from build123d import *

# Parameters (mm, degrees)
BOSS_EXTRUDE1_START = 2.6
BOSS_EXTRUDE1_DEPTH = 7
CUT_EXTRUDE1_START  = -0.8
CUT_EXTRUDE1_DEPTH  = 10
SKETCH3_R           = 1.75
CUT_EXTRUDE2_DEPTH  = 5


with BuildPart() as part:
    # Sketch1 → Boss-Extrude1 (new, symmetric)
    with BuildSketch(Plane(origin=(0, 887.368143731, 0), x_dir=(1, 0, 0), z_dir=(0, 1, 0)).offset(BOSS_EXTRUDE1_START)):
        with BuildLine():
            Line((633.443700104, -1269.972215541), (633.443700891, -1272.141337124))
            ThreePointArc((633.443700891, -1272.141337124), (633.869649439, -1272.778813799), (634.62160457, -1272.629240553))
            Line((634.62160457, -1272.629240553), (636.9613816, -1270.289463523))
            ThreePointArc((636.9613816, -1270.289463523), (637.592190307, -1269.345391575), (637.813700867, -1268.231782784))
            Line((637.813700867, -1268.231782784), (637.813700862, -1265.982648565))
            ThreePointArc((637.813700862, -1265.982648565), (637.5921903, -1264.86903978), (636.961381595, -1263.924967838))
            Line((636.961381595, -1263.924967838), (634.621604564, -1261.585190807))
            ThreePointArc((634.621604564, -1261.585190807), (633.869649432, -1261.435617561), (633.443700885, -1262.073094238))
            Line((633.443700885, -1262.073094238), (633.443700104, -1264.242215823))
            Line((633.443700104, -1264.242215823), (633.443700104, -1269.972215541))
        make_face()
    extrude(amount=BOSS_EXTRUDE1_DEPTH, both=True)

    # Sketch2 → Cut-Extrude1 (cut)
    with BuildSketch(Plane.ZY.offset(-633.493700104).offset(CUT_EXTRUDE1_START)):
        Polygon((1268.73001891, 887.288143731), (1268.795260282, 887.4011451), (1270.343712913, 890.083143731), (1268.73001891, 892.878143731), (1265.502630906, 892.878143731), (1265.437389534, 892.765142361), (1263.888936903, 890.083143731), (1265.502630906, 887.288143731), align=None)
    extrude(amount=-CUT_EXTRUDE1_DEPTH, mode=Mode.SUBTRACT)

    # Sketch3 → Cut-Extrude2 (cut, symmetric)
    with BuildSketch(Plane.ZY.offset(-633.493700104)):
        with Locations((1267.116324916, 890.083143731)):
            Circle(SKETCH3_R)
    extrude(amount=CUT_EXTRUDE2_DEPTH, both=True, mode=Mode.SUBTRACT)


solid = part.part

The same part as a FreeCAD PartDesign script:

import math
import FreeCAD as App
import Part
import Sketcher
from FreeCAD import Vector
Q = App.Units.Quantity

doc = App.newDocument("Part")
body = doc.addObject("PartDesign::Body", "Body")

sketch1 = body.newObject("Sketcher::SketchObject", "Sketch")
sketch1.AttachmentSupport = (doc.getObject("XZ_Plane"), [""])
sketch1.MapMode = "FlatFace"
sketch1.AttachmentOffset = App.Placement(Vector(0, 0, -889.968144), App.Rotation())
sketch1.addGeometry([
    Part.LineSegment(Vector(633.4, 1270, 0), Vector(633.4, 1272.1, 0)),
    Part.ArcOfCircle(Part.Circle(Vector(634.1, 1272.1, 0), Vector(0, 0, 1), 0.7), math.radians(45), math.radians(180)),
    Part.LineSegment(Vector(634.6, 1272.6, 0), Vector(637, 1270.3, 0)),
    Part.ArcOfCircle(Part.Circle(Vector(634.9, 1268.2, 0), Vector(0, 0, 1), 2.9), math.radians(0), math.radians(45)),
    Part.LineSegment(Vector(637.8, 1268.2, 0), Vector(637.8, 1266, 0)),
    Part.ArcOfCircle(Part.Circle(Vector(634.9, 1266, 0), Vector(0, 0, 1), 2.9), math.radians(-45), math.radians(0)),
    Part.LineSegment(Vector(637, 1263.9, 0), Vector(634.6, 1261.6, 0)),
    Part.ArcOfCircle(Part.Circle(Vector(634.1, 1262.1, 0), Vector(0, 0, 1), 0.7), math.radians(-180), math.radians(-45)),
    Part.LineSegment(Vector(633.4, 1262.1, 0), Vector(633.4, 1264.2, 0)),
    Part.LineSegment(Vector(633.4, 1264.2, 0), Vector(633.4, 1270, 0)),
], False)
sketch1.addConstraint([
    Sketcher.Constraint("Tangent", 0, 2, 1, 2),
    Sketcher.Constraint("Tangent", 1, 1, 2, 1),
    Sketcher.Constraint("Tangent", 2, 2, 3, 2),
    Sketcher.Constraint("Tangent", 3, 1, 4, 1),
    Sketcher.Constraint("Tangent", 4, 2, 5, 2),
    Sketcher.Constraint("Tangent", 5, 1, 6, 1),
    Sketcher.Constraint("Tangent", 6, 2, 7, 2),
    Sketcher.Constraint("Tangent", 7, 1, 8, 1),
    Sketcher.Constraint("Coincident", 8, 2, 9, 1),
    Sketcher.Constraint("Coincident", 9, 2, 0, 1),
    Sketcher.Constraint("Vertical", 0),
    Sketcher.Constraint("Vertical", 4),
    Sketcher.Constraint("Vertical", 8),
    Sketcher.Constraint("Vertical", 9),
    Sketcher.Constraint("Equal", 3, 5),
    Sketcher.Constraint("Equal", 1, 7),
    Sketcher.Constraint("Perpendicular", 2, 6),
    Sketcher.Constraint("Vertical", 2, 2, 5, 1),
    Sketcher.Constraint("Equal", 0, 8),
    Sketcher.Constraint("Radius", 1, Q("0.69 mm")),
    Sketcher.Constraint("Radius", 3, Q("2.91 mm")),
    Sketcher.Constraint("DistanceY", 9, 1, 9, 2, Q("5.73 mm")),
    Sketcher.Constraint("DistanceX", 1, 3, 3, 3, Q("0.77 mm")),
    Sketcher.Constraint("DistanceY", 0, 1, 0, 2, Q("2.169122 mm")),
    Sketcher.Constraint("DistanceX", -1, 1, 1, 3, Q("634.133701 mm")),
    Sketcher.Constraint("DistanceY", -1, 1, 5, 3, Q("1265.982649 mm")),
])
pad1 = body.newObject("PartDesign::Pad", "Pad")
pad1.Profile = sketch1
pad1.Length = 14
pad1.Midplane = True

sketch2 = body.newObject("Sketcher::SketchObject", "Sketch001")
sketch2.AttachmentSupport = (doc.getObject("YZ_Plane"), [""])
sketch2.MapMode = "FlatFace"
sketch2.AttachmentOffset = App.Placement(Vector(0, 0, 634.2937), App.Rotation())
sketch2.addGeometry([
    Part.LineSegment(Vector(887.29, 1268.73, 0), Vector(887.4, 1268.8, 0)),
    Part.LineSegment(Vector(887.4, 1268.8, 0), Vector(890.08, 1270.34, 0)),
    Part.LineSegment(Vector(890.08, 1270.34, 0), Vector(892.88, 1268.73, 0)),
    Part.LineSegment(Vector(892.88, 1268.73, 0), Vector(892.88, 1265.5, 0)),
    Part.LineSegment(Vector(892.88, 1265.5, 0), Vector(892.77, 1265.44, 0)),
    Part.LineSegment(Vector(892.77, 1265.44, 0), Vector(890.08, 1263.89, 0)),
    Part.LineSegment(Vector(890.08, 1263.89, 0), Vector(887.29, 1265.5, 0)),
    Part.LineSegment(Vector(887.29, 1265.5, 0), Vector(887.29, 1268.73, 0)),
], False)
sketch2.addConstraint([
    Sketcher.Constraint("Coincident", 0, 2, 1, 1),
    Sketcher.Constraint("Coincident", 1, 2, 2, 1),
    Sketcher.Constraint("Coincident", 2, 2, 3, 1),
    Sketcher.Constraint("Coincident", 3, 2, 4, 1),
    Sketcher.Constraint("Coincident", 4, 2, 5, 1),
    Sketcher.Constraint("Coincident", 5, 2, 6, 1),
    Sketcher.Constraint("Coincident", 6, 2, 7, 1),
    Sketcher.Constraint("Coincident", 7, 2, 0, 1),
    Sketcher.Constraint("Vertical", 3),
    Sketcher.Constraint("Vertical", 7),
    Sketcher.Constraint("Parallel", 0, 1),
    Sketcher.Constraint("Parallel", 1, 4),
    Sketcher.Constraint("Parallel", 4, 5),
    Sketcher.Constraint("Parallel", 2, 6),
    Sketcher.Constraint("Horizontal", 3, 2, 6, 2),
    Sketcher.Constraint("Horizontal", 2, 2, 7, 2),
    Sketcher.Constraint("Vertical", 1, 2, 5, 2),
    Sketcher.Constraint("Equal", 0, 4),
    Sketcher.Constraint("Angle", 0, Q("30 deg")),
    Sketcher.Constraint("DistanceX", 6, 2, 3, 2, Q("5.59 mm")),
    Sketcher.Constraint("DistanceX", 0, 2, 1, 2, Q("2.681999 mm")),
    Sketcher.Constraint("DistanceY", 3, 2, 3, 1, Q("3.227388 mm")),
    Sketcher.Constraint("DistanceY", -1, 1, 0, 2, Q("1268.79526 mm")),
    Sketcher.Constraint("DistanceX", -1, 1, 0, 2, Q("887.401145 mm")),
])
pocket1 = body.newObject("PartDesign::Pocket", "Pocket")
pocket1.Profile = sketch2
pocket1.Length = 10
pocket1.Reversed = True

sketch3 = body.newObject("Sketcher::SketchObject", "Sketch002")
sketch3.AttachmentSupport = (doc.getObject("YZ_Plane"), [""])
sketch3.MapMode = "FlatFace"
sketch3.AttachmentOffset = App.Placement(Vector(0, 0, 633.4937), App.Rotation())
sketch3.addGeometry(Part.Circle(Vector(890.1, 1267.1, 0), Vector(0, 0, 1), 1.8), False)
sketch3.addConstraint([
    Sketcher.Constraint("Diameter", 0, Q("3.5 mm")),
    Sketcher.Constraint("DistanceX", -1, 1, 0, 3, Q("890.083144 mm")),
    Sketcher.Constraint("DistanceY", -1, 1, 0, 3, Q("1267.116325 mm")),
])
pocket2 = body.newObject("PartDesign::Pocket", "Pocket001")
pocket2.Profile = sketch3
pocket2.Length = 10
pocket2.Midplane = True

doc.recompute()
